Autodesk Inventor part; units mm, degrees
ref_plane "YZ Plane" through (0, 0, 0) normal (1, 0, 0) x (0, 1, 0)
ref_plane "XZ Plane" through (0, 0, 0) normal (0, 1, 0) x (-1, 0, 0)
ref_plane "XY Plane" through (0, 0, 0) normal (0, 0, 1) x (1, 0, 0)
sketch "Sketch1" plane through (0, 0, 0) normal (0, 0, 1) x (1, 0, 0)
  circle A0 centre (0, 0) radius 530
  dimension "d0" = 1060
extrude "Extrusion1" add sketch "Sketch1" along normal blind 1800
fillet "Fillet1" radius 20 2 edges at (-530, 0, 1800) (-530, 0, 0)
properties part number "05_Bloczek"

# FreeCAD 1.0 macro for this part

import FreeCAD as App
import Part
import Sketcher
from FreeCAD import Vector


def edges_at(feature, points):
    """Names of the edges that pass closest to the given points."""
    edges = feature.Shape.Edges
    near = lambda p: min(range(len(edges)), key=lambda i: edges[i].distToShape(Part.Vertex(*p))[0])
    return sorted({f"Edge{near(p) + 1}" for p in points})

doc = App.newDocument("Part")
body = doc.addObject("PartDesign::Body", "Body")

# Sketch on XY plane
sketch1 = body.newObject("Sketcher::SketchObject", "Sketch")
sketch1.AttachmentSupport = (doc.getObject("XY_Plane"), [""])
sketch1.MapMode = "FlatFace"
sketch1.addGeometry(Part.Circle(Vector(0, 0, 0), Vector(0, 0, 1), 530), False)
sketch1.addConstraint([
    Sketcher.Constraint("Coincident", 0, 3, -1, 1),
    Sketcher.Constraint("Diameter", 0, 1060.0),
])
pad1 = body.newObject("PartDesign::Pad", "Pad")
pad1.Profile = sketch1
pad1.Length = 1800
doc.recompute()

fillet = body.newObject("PartDesign::Fillet", "Fillet")
fillet.Base = (pad1, edges_at(pad1, [(-530, 0, 1800), (-530, 0, 0)]))
fillet.Radius = 20

doc.recompute()
